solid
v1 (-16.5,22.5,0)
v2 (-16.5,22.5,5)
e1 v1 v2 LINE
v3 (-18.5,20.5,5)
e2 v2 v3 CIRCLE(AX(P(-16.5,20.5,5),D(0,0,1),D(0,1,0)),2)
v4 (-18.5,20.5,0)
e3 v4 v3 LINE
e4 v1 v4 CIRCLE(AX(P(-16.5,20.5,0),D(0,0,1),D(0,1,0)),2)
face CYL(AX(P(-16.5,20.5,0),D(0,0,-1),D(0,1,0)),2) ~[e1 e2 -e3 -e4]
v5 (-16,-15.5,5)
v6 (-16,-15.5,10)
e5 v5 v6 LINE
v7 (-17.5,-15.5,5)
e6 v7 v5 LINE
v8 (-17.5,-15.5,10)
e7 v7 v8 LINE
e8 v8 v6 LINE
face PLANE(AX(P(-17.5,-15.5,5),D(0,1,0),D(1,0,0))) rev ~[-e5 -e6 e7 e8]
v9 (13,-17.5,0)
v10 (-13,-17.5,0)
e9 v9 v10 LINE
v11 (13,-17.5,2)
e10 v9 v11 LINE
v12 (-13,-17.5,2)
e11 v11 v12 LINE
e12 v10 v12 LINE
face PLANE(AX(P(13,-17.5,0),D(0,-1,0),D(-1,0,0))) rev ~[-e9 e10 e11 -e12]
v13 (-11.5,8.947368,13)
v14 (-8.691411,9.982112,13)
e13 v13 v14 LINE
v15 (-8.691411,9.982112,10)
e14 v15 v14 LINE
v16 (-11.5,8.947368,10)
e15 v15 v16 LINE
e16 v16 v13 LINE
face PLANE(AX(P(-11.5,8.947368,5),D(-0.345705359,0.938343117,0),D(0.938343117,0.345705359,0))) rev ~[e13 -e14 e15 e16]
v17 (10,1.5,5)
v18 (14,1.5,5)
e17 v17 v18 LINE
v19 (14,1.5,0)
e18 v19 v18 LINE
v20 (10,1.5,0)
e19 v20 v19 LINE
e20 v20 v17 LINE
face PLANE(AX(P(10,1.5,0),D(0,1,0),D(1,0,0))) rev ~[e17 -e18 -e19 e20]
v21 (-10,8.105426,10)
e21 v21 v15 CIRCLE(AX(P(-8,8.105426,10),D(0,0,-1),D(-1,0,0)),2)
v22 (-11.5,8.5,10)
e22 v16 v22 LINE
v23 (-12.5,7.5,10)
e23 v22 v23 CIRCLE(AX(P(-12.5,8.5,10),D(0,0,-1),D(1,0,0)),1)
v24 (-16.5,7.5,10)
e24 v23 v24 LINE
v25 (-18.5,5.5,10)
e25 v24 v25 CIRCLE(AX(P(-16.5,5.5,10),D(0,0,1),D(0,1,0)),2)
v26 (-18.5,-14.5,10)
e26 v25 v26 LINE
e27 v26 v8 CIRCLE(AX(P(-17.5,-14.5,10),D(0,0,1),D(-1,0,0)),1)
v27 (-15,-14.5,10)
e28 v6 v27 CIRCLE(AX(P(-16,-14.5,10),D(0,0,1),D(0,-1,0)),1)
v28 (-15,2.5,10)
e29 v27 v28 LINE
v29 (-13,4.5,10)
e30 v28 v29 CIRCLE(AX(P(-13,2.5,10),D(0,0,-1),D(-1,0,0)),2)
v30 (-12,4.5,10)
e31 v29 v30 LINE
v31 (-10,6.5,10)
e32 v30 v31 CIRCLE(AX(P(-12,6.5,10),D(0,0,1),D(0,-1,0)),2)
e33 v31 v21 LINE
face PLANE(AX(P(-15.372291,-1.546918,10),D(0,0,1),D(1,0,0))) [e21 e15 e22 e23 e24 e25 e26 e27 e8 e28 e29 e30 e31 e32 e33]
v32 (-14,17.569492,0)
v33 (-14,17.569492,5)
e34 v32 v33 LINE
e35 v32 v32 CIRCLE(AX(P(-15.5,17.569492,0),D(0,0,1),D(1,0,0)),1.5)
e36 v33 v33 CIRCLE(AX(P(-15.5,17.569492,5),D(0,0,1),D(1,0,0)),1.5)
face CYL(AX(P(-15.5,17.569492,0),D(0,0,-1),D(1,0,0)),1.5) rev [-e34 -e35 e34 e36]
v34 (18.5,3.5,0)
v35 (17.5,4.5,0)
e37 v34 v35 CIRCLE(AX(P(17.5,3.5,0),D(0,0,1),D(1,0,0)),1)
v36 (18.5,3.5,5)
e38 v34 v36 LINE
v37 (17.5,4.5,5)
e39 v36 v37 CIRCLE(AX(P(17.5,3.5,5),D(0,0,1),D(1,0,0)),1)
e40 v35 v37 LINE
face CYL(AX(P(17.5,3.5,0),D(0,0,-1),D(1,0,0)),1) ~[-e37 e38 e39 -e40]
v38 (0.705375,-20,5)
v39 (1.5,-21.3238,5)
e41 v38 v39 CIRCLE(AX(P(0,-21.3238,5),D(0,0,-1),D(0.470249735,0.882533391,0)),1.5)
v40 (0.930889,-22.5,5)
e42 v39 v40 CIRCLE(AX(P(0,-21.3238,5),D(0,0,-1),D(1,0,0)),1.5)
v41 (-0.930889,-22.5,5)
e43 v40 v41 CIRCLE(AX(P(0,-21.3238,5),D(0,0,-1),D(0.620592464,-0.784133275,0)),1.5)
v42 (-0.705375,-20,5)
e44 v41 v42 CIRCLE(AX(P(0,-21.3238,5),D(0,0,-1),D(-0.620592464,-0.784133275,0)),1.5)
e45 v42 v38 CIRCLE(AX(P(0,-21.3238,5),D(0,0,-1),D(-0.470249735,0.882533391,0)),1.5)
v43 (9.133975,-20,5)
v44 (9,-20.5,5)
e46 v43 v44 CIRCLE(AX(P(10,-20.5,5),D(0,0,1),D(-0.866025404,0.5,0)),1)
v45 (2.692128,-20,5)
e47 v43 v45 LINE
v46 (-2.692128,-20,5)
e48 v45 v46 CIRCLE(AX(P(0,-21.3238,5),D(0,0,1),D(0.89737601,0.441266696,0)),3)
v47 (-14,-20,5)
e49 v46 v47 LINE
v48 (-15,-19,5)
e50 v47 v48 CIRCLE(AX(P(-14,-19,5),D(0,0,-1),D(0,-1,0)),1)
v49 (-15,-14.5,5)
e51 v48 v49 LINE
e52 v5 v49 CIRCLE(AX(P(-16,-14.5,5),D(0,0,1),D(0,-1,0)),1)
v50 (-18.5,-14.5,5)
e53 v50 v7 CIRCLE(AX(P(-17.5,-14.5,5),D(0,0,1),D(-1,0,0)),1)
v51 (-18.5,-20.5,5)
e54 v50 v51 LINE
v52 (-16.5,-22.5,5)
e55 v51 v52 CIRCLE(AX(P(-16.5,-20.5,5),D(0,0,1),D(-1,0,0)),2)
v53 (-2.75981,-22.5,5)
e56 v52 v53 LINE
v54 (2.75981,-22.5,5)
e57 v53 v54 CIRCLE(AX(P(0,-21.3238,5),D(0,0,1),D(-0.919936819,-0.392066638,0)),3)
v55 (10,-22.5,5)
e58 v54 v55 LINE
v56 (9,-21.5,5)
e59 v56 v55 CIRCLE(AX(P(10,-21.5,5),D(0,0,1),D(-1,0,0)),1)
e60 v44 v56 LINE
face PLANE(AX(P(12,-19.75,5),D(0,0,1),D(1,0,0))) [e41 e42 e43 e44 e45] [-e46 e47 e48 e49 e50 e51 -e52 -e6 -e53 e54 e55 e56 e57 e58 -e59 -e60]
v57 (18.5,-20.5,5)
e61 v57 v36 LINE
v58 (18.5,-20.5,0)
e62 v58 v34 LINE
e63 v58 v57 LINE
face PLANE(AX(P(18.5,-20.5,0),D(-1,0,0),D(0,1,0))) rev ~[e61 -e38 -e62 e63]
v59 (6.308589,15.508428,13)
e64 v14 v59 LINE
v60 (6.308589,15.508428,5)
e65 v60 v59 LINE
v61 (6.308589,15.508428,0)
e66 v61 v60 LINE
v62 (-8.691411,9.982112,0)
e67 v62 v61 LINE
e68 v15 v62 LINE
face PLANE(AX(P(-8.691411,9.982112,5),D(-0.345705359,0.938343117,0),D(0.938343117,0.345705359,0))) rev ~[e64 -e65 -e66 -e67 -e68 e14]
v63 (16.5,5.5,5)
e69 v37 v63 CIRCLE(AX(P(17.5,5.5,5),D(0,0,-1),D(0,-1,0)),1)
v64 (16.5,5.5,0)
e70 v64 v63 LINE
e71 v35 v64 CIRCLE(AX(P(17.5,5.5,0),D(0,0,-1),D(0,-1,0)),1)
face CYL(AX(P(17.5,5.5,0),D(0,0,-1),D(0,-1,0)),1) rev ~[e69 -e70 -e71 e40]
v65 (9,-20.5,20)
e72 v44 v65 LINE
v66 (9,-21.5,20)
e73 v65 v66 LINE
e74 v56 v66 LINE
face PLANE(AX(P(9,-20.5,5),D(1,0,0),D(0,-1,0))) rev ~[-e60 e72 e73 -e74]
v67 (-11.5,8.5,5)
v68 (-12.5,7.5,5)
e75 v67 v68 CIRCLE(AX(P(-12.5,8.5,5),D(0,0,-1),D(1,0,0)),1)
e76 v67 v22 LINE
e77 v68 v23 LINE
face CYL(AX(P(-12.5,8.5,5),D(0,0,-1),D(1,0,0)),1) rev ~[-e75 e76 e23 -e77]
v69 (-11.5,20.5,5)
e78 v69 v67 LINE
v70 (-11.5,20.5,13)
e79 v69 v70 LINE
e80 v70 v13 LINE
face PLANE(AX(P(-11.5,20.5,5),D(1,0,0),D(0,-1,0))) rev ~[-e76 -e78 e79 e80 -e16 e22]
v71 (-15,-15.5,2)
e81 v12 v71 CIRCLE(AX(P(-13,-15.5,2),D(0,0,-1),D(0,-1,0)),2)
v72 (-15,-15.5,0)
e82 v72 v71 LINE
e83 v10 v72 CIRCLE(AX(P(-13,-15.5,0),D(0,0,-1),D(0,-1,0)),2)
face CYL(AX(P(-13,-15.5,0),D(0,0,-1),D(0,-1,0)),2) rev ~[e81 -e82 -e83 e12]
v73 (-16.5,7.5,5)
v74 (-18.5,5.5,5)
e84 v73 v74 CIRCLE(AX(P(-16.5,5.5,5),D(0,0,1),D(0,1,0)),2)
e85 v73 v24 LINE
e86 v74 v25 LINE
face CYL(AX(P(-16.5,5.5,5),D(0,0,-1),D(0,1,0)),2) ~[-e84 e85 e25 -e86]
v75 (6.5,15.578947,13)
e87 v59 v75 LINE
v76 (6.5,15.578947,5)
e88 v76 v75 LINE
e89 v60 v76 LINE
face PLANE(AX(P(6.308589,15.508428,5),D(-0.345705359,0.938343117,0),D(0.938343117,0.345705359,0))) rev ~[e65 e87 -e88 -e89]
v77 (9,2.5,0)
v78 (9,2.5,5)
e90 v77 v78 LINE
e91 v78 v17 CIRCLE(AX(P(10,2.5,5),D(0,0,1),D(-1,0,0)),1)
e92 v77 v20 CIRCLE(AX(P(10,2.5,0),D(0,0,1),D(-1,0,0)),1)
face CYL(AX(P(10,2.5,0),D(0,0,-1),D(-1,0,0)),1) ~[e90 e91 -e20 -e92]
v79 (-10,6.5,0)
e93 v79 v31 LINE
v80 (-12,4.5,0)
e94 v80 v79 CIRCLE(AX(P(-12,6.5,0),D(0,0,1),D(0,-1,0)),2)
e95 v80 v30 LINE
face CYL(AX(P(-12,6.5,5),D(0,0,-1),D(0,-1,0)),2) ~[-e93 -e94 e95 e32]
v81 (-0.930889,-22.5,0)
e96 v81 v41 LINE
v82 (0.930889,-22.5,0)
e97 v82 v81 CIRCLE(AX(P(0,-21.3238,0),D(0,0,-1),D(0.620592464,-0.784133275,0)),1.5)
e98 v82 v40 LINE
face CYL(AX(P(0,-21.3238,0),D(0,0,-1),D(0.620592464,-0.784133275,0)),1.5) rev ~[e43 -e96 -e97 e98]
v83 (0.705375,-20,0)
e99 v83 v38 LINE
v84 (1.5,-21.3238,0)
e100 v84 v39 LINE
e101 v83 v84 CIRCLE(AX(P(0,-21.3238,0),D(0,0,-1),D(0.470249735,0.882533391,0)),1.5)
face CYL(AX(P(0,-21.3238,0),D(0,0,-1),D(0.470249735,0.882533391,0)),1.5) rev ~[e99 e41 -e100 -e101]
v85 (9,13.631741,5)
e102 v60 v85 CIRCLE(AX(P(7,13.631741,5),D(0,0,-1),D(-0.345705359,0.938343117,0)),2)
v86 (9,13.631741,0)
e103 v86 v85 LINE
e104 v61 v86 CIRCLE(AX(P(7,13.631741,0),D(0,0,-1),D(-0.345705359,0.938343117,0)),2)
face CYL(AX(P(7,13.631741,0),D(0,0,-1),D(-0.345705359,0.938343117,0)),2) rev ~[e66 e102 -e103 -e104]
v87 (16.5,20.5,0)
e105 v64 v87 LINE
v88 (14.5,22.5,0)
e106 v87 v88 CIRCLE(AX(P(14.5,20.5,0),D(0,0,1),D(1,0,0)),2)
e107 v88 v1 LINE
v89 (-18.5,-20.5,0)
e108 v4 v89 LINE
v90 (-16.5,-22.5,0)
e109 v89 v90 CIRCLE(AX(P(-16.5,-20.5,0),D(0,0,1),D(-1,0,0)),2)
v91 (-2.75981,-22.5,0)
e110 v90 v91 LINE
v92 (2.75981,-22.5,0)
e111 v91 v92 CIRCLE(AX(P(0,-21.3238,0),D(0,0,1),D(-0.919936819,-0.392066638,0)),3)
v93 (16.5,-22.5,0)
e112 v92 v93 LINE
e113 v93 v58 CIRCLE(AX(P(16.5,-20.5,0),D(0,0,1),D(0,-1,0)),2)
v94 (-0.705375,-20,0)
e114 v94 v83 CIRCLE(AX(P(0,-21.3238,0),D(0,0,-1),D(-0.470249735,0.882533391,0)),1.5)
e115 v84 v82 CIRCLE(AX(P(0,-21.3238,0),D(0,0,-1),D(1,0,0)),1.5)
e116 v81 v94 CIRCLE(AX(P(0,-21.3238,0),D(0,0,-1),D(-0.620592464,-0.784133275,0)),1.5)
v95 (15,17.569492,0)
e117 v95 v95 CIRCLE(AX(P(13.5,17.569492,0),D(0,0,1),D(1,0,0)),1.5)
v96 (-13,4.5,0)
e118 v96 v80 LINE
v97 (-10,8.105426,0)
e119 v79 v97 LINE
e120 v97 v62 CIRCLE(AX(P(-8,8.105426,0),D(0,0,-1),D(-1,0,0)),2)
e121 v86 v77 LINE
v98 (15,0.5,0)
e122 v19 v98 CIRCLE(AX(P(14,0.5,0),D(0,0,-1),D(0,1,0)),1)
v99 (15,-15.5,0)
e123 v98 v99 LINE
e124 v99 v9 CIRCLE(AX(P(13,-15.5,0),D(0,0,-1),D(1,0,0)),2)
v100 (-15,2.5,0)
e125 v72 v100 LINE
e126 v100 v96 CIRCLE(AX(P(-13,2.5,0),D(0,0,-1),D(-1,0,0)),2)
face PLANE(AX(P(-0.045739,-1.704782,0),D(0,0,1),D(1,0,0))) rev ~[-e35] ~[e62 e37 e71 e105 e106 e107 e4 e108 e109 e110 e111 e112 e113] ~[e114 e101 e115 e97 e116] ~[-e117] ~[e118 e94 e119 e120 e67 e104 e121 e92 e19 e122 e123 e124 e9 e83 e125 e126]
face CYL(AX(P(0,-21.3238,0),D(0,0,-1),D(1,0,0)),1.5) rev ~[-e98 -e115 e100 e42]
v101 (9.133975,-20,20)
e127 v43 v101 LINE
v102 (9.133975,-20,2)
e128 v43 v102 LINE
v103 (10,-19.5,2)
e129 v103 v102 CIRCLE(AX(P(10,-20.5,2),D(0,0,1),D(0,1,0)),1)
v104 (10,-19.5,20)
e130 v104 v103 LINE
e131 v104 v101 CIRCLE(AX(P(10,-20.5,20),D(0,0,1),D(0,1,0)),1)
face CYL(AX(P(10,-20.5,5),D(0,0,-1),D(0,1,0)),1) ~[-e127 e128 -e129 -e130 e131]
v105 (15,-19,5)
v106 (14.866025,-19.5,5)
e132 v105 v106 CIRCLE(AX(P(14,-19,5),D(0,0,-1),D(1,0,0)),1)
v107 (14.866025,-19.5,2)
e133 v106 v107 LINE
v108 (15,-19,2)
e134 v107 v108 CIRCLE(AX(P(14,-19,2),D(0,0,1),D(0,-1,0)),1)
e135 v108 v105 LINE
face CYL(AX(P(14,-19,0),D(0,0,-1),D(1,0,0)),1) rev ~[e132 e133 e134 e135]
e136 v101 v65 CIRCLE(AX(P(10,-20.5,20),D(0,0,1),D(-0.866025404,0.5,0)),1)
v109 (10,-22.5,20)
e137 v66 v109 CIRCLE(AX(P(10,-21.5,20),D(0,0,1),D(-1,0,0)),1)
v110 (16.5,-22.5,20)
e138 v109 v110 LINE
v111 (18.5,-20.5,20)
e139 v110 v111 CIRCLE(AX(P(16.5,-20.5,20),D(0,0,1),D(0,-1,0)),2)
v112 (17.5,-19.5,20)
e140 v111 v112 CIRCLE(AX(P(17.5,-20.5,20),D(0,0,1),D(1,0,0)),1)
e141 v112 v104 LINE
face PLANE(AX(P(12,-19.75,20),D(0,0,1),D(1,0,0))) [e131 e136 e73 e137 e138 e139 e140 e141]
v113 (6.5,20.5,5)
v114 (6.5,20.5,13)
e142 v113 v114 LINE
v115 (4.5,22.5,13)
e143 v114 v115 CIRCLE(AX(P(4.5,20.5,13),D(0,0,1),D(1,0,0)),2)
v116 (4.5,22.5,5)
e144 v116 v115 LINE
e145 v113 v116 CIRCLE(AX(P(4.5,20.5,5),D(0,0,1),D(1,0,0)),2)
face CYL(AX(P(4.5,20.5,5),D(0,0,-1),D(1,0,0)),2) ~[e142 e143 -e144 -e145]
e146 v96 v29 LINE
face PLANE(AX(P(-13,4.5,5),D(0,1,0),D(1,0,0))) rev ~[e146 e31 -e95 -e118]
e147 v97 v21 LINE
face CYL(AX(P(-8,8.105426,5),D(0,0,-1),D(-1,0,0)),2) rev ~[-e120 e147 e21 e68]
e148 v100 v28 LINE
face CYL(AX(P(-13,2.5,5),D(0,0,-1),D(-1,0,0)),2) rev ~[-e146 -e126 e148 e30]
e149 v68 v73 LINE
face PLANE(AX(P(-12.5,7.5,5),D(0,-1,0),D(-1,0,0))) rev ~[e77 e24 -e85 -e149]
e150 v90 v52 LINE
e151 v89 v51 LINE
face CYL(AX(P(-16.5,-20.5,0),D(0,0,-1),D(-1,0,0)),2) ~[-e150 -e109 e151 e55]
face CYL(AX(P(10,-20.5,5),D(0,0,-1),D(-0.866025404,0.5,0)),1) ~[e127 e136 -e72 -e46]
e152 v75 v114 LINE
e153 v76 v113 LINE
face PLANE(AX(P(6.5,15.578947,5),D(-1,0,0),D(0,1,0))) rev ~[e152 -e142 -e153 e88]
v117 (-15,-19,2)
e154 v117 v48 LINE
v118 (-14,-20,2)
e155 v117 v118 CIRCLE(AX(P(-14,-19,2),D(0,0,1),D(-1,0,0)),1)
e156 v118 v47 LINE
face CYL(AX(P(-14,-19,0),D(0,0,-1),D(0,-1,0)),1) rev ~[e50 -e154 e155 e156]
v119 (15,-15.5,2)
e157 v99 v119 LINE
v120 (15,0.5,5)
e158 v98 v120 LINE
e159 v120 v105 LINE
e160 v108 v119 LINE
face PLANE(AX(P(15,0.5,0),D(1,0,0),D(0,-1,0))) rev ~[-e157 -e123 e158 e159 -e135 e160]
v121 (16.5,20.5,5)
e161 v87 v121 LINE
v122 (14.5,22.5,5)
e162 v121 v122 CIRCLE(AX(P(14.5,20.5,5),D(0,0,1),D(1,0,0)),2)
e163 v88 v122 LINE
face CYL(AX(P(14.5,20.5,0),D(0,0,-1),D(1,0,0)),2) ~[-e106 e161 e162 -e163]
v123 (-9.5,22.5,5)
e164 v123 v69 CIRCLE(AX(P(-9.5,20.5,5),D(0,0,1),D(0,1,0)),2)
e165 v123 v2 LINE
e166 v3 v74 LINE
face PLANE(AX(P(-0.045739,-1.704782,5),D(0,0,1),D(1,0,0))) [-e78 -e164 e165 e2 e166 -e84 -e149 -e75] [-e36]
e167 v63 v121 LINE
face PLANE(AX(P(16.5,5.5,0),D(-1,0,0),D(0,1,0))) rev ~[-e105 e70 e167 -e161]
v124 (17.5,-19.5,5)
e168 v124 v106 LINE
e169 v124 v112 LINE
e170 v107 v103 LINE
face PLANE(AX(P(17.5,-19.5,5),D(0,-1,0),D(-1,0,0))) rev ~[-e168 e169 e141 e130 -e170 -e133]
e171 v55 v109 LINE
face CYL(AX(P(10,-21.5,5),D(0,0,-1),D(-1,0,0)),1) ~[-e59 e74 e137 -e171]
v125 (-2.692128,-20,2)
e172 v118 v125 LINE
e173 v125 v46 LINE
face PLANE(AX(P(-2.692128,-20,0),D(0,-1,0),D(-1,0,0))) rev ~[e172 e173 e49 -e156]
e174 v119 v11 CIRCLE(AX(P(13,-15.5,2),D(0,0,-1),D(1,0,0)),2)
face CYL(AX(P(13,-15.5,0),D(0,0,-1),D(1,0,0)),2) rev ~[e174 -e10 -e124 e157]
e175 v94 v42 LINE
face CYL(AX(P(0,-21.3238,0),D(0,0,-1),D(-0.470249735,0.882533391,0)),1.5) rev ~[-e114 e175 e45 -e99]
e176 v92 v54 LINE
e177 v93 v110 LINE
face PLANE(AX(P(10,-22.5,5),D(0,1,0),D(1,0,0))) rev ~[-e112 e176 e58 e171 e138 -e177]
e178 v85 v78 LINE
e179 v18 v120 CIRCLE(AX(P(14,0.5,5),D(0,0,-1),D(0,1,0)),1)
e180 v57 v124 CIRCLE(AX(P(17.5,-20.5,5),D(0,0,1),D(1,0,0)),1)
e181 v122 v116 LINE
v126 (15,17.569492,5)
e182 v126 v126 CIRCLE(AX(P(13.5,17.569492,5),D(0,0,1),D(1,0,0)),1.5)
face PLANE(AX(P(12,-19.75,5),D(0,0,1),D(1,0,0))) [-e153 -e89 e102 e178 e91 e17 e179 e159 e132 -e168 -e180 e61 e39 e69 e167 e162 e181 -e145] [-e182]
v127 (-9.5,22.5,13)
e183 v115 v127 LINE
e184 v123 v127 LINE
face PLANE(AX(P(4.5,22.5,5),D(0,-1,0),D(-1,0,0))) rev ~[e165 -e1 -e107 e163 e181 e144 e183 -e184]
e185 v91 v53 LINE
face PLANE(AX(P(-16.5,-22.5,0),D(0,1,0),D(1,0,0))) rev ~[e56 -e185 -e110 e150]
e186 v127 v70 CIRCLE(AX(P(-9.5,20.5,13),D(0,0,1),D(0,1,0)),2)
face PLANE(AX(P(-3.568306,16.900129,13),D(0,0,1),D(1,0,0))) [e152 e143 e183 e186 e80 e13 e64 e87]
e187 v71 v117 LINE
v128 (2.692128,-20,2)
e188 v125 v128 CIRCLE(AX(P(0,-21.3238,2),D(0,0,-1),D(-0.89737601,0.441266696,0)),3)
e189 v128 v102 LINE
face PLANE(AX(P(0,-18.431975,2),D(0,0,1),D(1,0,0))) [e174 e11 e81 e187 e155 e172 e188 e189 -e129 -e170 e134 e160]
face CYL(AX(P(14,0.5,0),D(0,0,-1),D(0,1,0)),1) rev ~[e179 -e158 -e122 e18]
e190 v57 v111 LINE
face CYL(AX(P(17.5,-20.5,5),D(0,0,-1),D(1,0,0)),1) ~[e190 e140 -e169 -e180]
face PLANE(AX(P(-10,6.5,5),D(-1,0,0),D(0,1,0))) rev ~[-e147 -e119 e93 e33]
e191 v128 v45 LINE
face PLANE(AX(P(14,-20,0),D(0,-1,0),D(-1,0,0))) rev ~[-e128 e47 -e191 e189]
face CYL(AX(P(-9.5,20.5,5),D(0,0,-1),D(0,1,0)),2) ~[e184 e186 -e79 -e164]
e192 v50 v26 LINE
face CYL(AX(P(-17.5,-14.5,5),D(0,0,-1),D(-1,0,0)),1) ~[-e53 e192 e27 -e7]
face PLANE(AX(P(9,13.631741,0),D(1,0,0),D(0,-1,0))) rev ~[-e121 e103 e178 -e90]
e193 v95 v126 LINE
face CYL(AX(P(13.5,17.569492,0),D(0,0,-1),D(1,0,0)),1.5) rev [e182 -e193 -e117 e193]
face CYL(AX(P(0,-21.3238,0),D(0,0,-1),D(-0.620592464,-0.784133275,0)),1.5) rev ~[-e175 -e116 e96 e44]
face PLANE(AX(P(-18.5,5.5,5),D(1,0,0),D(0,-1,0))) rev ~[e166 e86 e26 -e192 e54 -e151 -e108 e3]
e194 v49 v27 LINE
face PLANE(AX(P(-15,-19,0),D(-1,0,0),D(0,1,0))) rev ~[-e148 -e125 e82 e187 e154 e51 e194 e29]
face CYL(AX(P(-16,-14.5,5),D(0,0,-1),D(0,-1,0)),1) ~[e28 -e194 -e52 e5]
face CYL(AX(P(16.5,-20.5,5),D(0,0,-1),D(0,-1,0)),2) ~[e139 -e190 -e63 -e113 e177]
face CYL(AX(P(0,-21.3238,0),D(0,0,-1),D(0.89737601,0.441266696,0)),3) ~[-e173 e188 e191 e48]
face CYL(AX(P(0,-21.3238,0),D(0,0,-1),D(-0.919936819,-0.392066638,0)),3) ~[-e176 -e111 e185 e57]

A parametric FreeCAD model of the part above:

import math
import FreeCAD as App
import Part
import Sketcher
from FreeCAD import Vector
Q = App.Units.Quantity

doc = App.newDocument("Part")
body = doc.addObject("PartDesign::Body", "Body")

# Sketch on XY plane
sketch1 = body.newObject("Sketcher::SketchObject", "Sketch")
sketch1.AttachmentSupport = (doc.getObject("XY_Plane"), [""])
sketch1.MapMode = "FlatFace"
sketch1.addGeometry(Part.LineSegment(Vector(-14, -20, 0), Vector(-2.7, -20, 0)), False)
sketch1.addGeometry(Part.ArcOfCircle(Part.Circle(Vector(0, -21.3, 0), Vector(0, 0, 1), 3), math.radians(26), math.radians(154)), False)
sketch1.addGeometry(Part.LineSegment(Vector(2.7, -20, 0), Vector(14, -20, 0)), False)
sketch1.addGeometry(Part.ArcOfCircle(Part.Circle(Vector(14, -19, 0), Vector(0, 0, 1), 1), math.radians(-90), math.radians(0)), False)
sketch1.addGeometry(Part.LineSegment(Vector(15, -19, 0), Vector(15, -15.5, 0)), False)
sketch1.addGeometry(Part.ArcOfCircle(Part.Circle(Vector(13, -15.5, 0), Vector(0, 0, 1), 2), math.radians(-90), math.radians(0)), False)
sketch1.addGeometry(Part.LineSegment(Vector(13, -17.5, 0), Vector(-13, -17.5, 0)), False)
sketch1.addGeometry(Part.ArcOfCircle(Part.Circle(Vector(-13, -15.5, 0), Vector(0, 0, 1), 2), math.radians(180), math.radians(270)), False)
sketch1.addGeometry(Part.LineSegment(Vector(-15, -15.5, 0), Vector(-15, -19, 0)), False)
sketch1.addGeometry(Part.ArcOfCircle(Part.Circle(Vector(-14, -19, 0), Vector(0, 0, 1), 1), math.radians(180), math.radians(270)), False)
sketch1.addConstraint(Sketcher.Constraint("Coincident", 0, 2, 1, 2))
sketch1.addConstraint(Sketcher.Constraint("Coincident", 1, 1, 2, 1))
sketch1.addConstraint(Sketcher.Constraint("Tangent", 2, 2, 3, 1))
sketch1.addConstraint(Sketcher.Constraint("Tangent", 3, 2, 4, 1))
sketch1.addConstraint(Sketcher.Constraint("Tangent", 4, 2, 5, 2))
sketch1.addConstraint(Sketcher.Constraint("Tangent", 5, 1, 6, 1))
sketch1.addConstraint(Sketcher.Constraint("Tangent", 6, 2, 7, 2))
sketch1.addConstraint(Sketcher.Constraint("Tangent", 7, 1, 8, 1))
sketch1.addConstraint(Sketcher.Constraint("Tangent", 8, 2, 9, 1))
sketch1.addConstraint(Sketcher.Constraint("Tangent", 9, 2, 0, 1))
sketch1.addConstraint(Sketcher.Constraint("Horizontal", 0))
sketch1.addConstraint(Sketcher.Constraint("Horizontal", 2))
sketch1.addConstraint(Sketcher.Constraint("Vertical", 4))
sketch1.addConstraint(Sketcher.Constraint("Horizontal", 6))
sketch1.addConstraint(Sketcher.Constraint("Vertical", 8))
sketch1.addConstraint(Sketcher.Constraint("Equal", 5, 7))
sketch1.addConstraint(Sketcher.Constraint("Equal", 3, 9))
sketch1.addConstraint(Sketcher.Constraint("Symmetric", 3, 3, 9, 3, -2))
sketch1.addConstraint(Sketcher.Constraint("PointOnObject", 1, 3, -2))
sketch1.addConstraint(Sketcher.Constraint("Radius", 1, Q("3 mm")))
sketch1.addConstraint(Sketcher.Constraint("Radius", 3, Q("1 mm")))
sketch1.addConstraint(Sketcher.Constraint("Radius", 5, Q("2 mm")))
sketch1.addConstraint(Sketcher.Constraint("DistanceX", 6, 2, 6, 1, Q("26 mm")))
sketch1.addConstraint(Sketcher.Constraint("DistanceY", 4, 1, 4, 2, Q("3.5 mm")))
sketch1.addConstraint(Sketcher.Constraint("DistanceY", 3, 3, -1, 1, Q("19 mm")))
sketch1.addConstraint(Sketcher.Constraint("DistanceX", 0, 1, 0, 2, Q("11.307872 mm")))
pad1 = body.newObject("PartDesign::Pad", "Pad")
pad1.Profile = sketch1
pad1.Length = 2

# Sketch on XY plane
sketch2 = body.newObject("Sketcher::SketchObject", "Sketch001")
sketch2.AttachmentSupport = (doc.getObject("XY_Plane"), [""])
sketch2.MapMode = "FlatFace"
sketch2.addGeometry(Part.ArcOfCircle(Part.Circle(Vector(17.5, 5.5, 0), Vector(0, 0, 1), 1), math.radians(180), math.radians(270)), False)
sketch2.addGeometry(Part.LineSegment(Vector(16.5, 5.5, 0), Vector(16.5, 20.5, 0)), False)
sketch2.addGeometry(Part.ArcOfCircle(Part.Circle(Vector(14.5, 20.5, 0), Vector(0, 0, 1), 2), math.radians(0), math.radians(90)), False)
sketch2.addGeometry(Part.LineSegment(Vector(14.5, 22.5, 0), Vector(-16.5, 22.5, 0)), False)
sketch2.addGeometry(Part.ArcOfCircle(Part.Circle(Vector(-16.5, 20.5, 0), Vector(0, 0, 1), 2), math.radians(90), math.radians(180)), False)
sketch2.addGeometry(Part.LineSegment(Vector(-18.5, 20.5, 0), Vector(-18.5, -20.5, 0)), False)
sketch2.addGeometry(Part.ArcOfCircle(Part.Circle(Vector(-16.5, -20.5, 0), Vector(0, 0, 1), 2), math.radians(180), math.radians(270)), False)
sketch2.addGeometry(Part.LineSegment(Vector(-16.5, -22.5, 0), Vector(-2.8, -22.5, 0)), False)
sketch2.addGeometry(Part.ArcOfCircle(Part.Circle(Vector(0, -21.3, 0), Vector(0, 0, 1), 3), math.radians(-157), math.radians(-23)), False)
sketch2.addGeometry(Part.LineSegment(Vector(2.8, -22.5, 0), Vector(16.5, -22.5, 0)), False)
sketch2.addGeometry(Part.ArcOfCircle(Part.Circle(Vector(16.5, -20.5, 0), Vector(0, 0, 1), 2), math.radians(-90), math.radians(0)), False)
sketch2.addGeometry(Part.LineSegment(Vector(18.5, -20.5, 0), Vector(18.5, 3.5, 0)), False)
sketch2.addGeometry(Part.ArcOfCircle(Part.Circle(Vector(17.5, 3.5, 0), Vector(0, 0, 1), 1), math.radians(0), math.radians(90)), False)
sketch2.addGeometry(Part.ArcOfCircle(Part.Circle(Vector(0, -21.3, 0), Vector(0, 0, 1), 1.5), math.radians(-52), math.radians(0)), False)
sketch2.addGeometry(Part.ArcOfCircle(Part.Circle(Vector(0, -21.3, 0), Vector(0, 0, 1), 1.5), math.radians(-128), math.radians(-52)), False)
sketch2.addGeometry(Part.ArcOfCircle(Part.Circle(Vector(0, -21.3, 0), Vector(0, 0, 1), 1.5), math.radians(118), math.radians(232)), False)
sketch2.addGeometry(Part.ArcOfCircle(Part.Circle(Vector(0, -21.3, 0), Vector(0, 0, 1), 1.5), math.radians(62), math.radians(118)), False)
sketch2.addGeometry(Part.ArcOfCircle(Part.Circle(Vector(0, -21.3, 0), Vector(0, 0, 1), 1.5), math.radians(0), math.radians(62)), False)
sketch2.addGeometry(Part.LineSegment(Vector(14, -20, 0), Vector(2.7, -20, 0)), False)
sketch2.addGeometry(Part.ArcOfCircle(Part.Circle(Vector(0, -21.3, 0), Vector(0, 0, 1), 3), math.radians(26), math.radians(154)), False)
sketch2.addGeometry(Part.LineSegment(Vector(-2.7, -20, 0), Vector(-14, -20, 0)), False)
sketch2.addGeometry(Part.ArcOfCircle(Part.Circle(Vector(-14, -19, 0), Vector(0, 0, 1), 1), math.radians(180), math.radians(270)), False)
sketch2.addGeometry(Part.LineSegment(Vector(-15, -19, 0), Vector(-15, 2.5, 0)), False)
sketch2.addGeometry(Part.ArcOfCircle(Part.Circle(Vector(-13, 2.5, 0), Vector(0, 0, 1), 2), math.radians(90), math.radians(180)), False)
sketch2.addGeometry(Part.LineSegment(Vector(-13, 4.5, 0), Vector(-12, 4.5, 0)), False)
sketch2.addGeometry(Part.ArcOfCircle(Part.Circle(Vector(-12, 6.5, 0), Vector(0, 0, 1), 2), math.radians(-90), math.radians(0)), False)
sketch2.addGeometry(Part.LineSegment(Vector(-10, 6.5, 0), Vector(-10, 8.1, 0)), False)
sketch2.addGeometry(Part.ArcOfCircle(Part.Circle(Vector(-8, 8.1, 0), Vector(0, 0, 1), 2), math.radians(110), math.radians(180)), False)
sketch2.addGeometry(Part.LineSegment(Vector(-8.7, 10, 0), Vector(6.3, 15.5, 0)), False)
sketch2.addGeometry(Part.ArcOfCircle(Part.Circle(Vector(7, 13.6, 0), Vector(0, 0, 1), 2), math.radians(0), math.radians(110)), False)
sketch2.addGeometry(Part.LineSegment(Vector(9, 13.6, 0), Vector(9, 2.5, 0)), False)
sketch2.addGeometry(Part.ArcOfCircle(Part.Circle(Vector(10, 2.5, 0), Vector(0, 0, 1), 1), math.radians(180), math.radians(270)), False)
sketch2.addGeometry(Part.LineSegment(Vector(10, 1.5, 0), Vector(14, 1.5, 0)), False)
sketch2.addGeometry(Part.ArcOfCircle(Part.Circle(Vector(14, 0.5, 0), Vector(0, 0, 1), 1), math.radians(0), math.radians(90)), False)
sketch2.addGeometry(Part.LineSegment(Vector(15, 0.5, 0), Vector(15, -19, 0)), False)
sketch2.addGeometry(Part.ArcOfCircle(Part.Circle(Vector(14, -19, 0), Vector(0, 0, 1), 1), math.radians(-90), math.radians(0)), False)
sketch2.addGeometry(Part.Circle(Vector(-15.5, 17.6, 0), Vector(0, 0, 1), 1.5), False)
sketch2.addGeometry(Part.Circle(Vector(13.5, 17.6, 0), Vector(0, 0, 1), 1.5), False)
sketch2.addConstraint(Sketcher.Constraint("Tangent", 0, 1, 1, 1))
sketch2.addConstraint(Sketcher.Constraint("Tangent", 1, 2, 2, 1))
sketch2.addConstraint(Sketcher.Constraint("Tangent", 2, 2, 3, 1))
sketch2.addConstraint(Sketcher.Constraint("Tangent", 3, 2, 4, 1))
sketch2.addConstraint(Sketcher.Constraint("Tangent", 4, 2, 5, 1))
sketch2.addConstraint(Sketcher.Constraint("Tangent", 5, 2, 6, 1))
sketch2.addConstraint(Sketcher.Constraint("Tangent", 6, 2, 7, 1))
sketch2.addConstraint(Sketcher.Constraint("Coincident", 7, 2, 8, 1))
sketch2.addConstraint(Sketcher.Constraint("Coincident", 8, 2, 9, 1))
sketch2.addConstraint(Sketcher.Constraint("Tangent", 9, 2, 10, 1))
sketch2.addConstraint(Sketcher.Constraint("Tangent", 10, 2, 11, 1))
sketch2.addConstraint(Sketcher.Constraint("Tangent", 11, 2, 12, 1))
sketch2.addConstraint(Sketcher.Constraint("Tangent", 12, 2, 0, 2))
sketch2.addConstraint(Sketcher.Constraint("Tangent", 13, 1, 14, 2))
sketch2.addConstraint(Sketcher.Constraint("Tangent", 14, 1, 15, 2))
sketch2.addConstraint(Sketcher.Constraint("Tangent", 15, 1, 16, 2))
sketch2.addConstraint(Sketcher.Constraint("Tangent", 16, 1, 17, 2))
sketch2.addConstraint(Sketcher.Constraint("Tangent", 17, 1, 13, 2))
sketch2.addConstraint(Sketcher.Constraint("Coincident", 18, 2, 19, 1))
sketch2.addConstraint(Sketcher.Constraint("Coincident", 19, 2, 20, 1))
sketch2.addConstraint(Sketcher.Constraint("Tangent", 20, 2, 21, 2))
sketch2.addConstraint(Sketcher.Constraint("Tangent", 21, 1, 22, 1))
sketch2.addConstraint(Sketcher.Constraint("Tangent", 22, 2, 23, 2))
sketch2.addConstraint(Sketcher.Constraint("Tangent", 23, 1, 24, 1))
sketch2.addConstraint(Sketcher.Constraint("Tangent", 24, 2, 25, 1))
sketch2.addConstraint(Sketcher.Constraint("Tangent", 25, 2, 26, 1))
sketch2.addConstraint(Sketcher.Constraint("Tangent", 26, 2, 27, 2))
sketch2.addConstraint(Sketcher.Constraint("Tangent", 27, 1, 28, 1))
sketch2.addConstraint(Sketcher.Constraint("Tangent", 28, 2, 29, 2))
sketch2.addConstraint(Sketcher.Constraint("Tangent", 29, 1, 30, 1))
sketch2.addConstraint(Sketcher.Constraint("Tangent", 30, 2, 31, 1))
sketch2.addConstraint(Sketcher.Constraint("Tangent", 31, 2, 32, 1))
sketch2.addConstraint(Sketcher.Constraint("Tangent", 32, 2, 33, 2))
sketch2.addConstraint(Sketcher.Constraint("Tangent", 33, 1, 34, 1))
sketch2.addConstraint(Sketcher.Constraint("Tangent", 34, 2, 35, 2))
sketch2.addConstraint(Sketcher.Constraint("Tangent", 35, 1, 18, 1))
sketch2.addConstraint(Sketcher.Constraint("Vertical", 1))
sketch2.addConstraint(Sketcher.Constraint("Horizontal", 3))
sketch2.addConstraint(Sketcher.Constraint("Vertical", 5))
sketch2.addConstraint(Sketcher.Constraint("Horizontal", 7))
sketch2.addConstraint(Sketcher.Constraint("Horizontal", 9))
sketch2.addConstraint(Sketcher.Constraint("Vertical", 11))
sketch2.addConstraint(Sketcher.Constraint("Horizontal", 18))
sketch2.addConstraint(Sketcher.Constraint("Horizontal", 20))
sketch2.addConstraint(Sketcher.Constraint("Vertical", 22))
sketch2.addConstraint(Sketcher.Constraint("Horizontal", 24))
sketch2.addConstraint(Sketcher.Constraint("Vertical", 26))
sketch2.addConstraint(Sketcher.Constraint("Vertical", 30))
sketch2.addConstraint(Sketcher.Constraint("Horizontal", 32))
sketch2.addConstraint(Sketcher.Constraint("Vertical", 34))
sketch2.addConstraint(Sketcher.Constraint("Coincident", 13, 3, 8, 3))
sketch2.addConstraint(Sketcher.Constraint("Coincident", 15, 3, 8, 3))
sketch2.addConstraint(Sketcher.Constraint("Coincident", 19, 3, 8, 3))
sketch2.addConstraint(Sketcher.Constraint("Equal", 2, 4))
sketch2.addConstraint(Sketcher.Constraint("Equal", 4, 6))
sketch2.addConstraint(Sketcher.Constraint("Equal", 6, 10))
sketch2.addConstraint(Sketcher.Constraint("Equal", 0, 12))
sketch2.addConstraint(Sketcher.Constraint("Equal", 8, 19))
sketch2.addConstraint(Sketcher.Constraint("Equal", 12, 21))
sketch2.addConstraint(Sketcher.Constraint("Equal", 10, 23))
sketch2.addConstraint(Sketcher.Constraint("Equal", 23, 25))
sketch2.addConstraint(Sketcher.Constraint("Equal", 25, 27))
sketch2.addConstraint(Sketcher.Constraint("Equal", 27, 29))
sketch2.addConstraint(Sketcher.Constraint("Equal", 21, 31))
sketch2.addConstraint(Sketcher.Constraint("Equal", 31, 33))
sketch2.addConstraint(Sketcher.Constraint("Equal", 33, 35))
sketch2.addConstraint(Sketcher.Constraint("Equal", 17, 36))
sketch2.addConstraint(Sketcher.Constraint("Equal", 36, 37))
sketch2.addConstraint(Sketcher.Constraint("Symmetric", 4, 3, 10, 3, -1, 1))
sketch2.addConstraint(Sketcher.Constraint("Symmetric", 21, 3, 35, 3, -2))
sketch2.addConstraint(Sketcher.Constraint("Symmetric", 7, 2, 8, 2, -2))
sketch2.addConstraint(Sketcher.Constraint("Horizontal", 23, 3, 31, 3))
sketch2.addConstraint(Sketcher.Constraint("Horizontal", 36, 3, 37, 3))
sketch2.addConstraint(Sketcher.Constraint("Horizontal", 9, 2, 13, 1))
sketch2.addConstraint(Sketcher.Constraint("Horizontal", 13, 1, 14, 1))
sketch2.addConstraint(Sketcher.Constraint("Horizontal", 15, 1, 16, 1))
sketch2.addConstraint(Sketcher.Constraint("Horizontal", 19, 3, 17, 1))
sketch2.addConstraint(Sketcher.Constraint("Horizontal", 16, 1, 18, 2))
sketch2.addConstraint(Sketcher.Constraint("Horizontal", 12, 2, 23, 1))
sketch2.addConstraint(Sketcher.Constraint("Vertical", 0, 3, 12, 3))
sketch2.addConstraint(Sketcher.Constraint("Vertical", 10, 3, 0, 1))
sketch2.addConstraint(Sketcher.Constraint("Diameter", 36, Q("3 mm")))
sketch2.addConstraint(Sketcher.Constraint("Radius", 0, Q("1 mm")))
sketch2.addConstraint(Sketcher.Constraint("Radius", 8, Q("3 mm")))
sketch2.addConstraint(Sketcher.Constraint("DistanceX", 3, 2, 3, 1, Q("31 mm")))
sketch2.addConstraint(Sketcher.Constraint("DistanceX", 24, 1, 24, 2, Q("1 mm")))
sketch2.addConstraint(Sketcher.Constraint("DistanceX", 32, 1, 32, 2, Q("4 mm")))
sketch2.addConstraint(Sketcher.Constraint("DistanceY", 1, 1, 1, 2, Q("15 mm")))
sketch2.addConstraint(Sketcher.Constraint("DistanceY", 5, 2, 5, 1, Q("41 mm")))
sketch2.addConstraint(Sketcher.Constraint("DistanceY", 22, 1, 22, 2, Q("21.5 mm")))
sketch2.addConstraint(Sketcher.Constraint("DistanceX", 21, 3, -1, 1, Q("14 mm")))
sketch2.addConstraint(Sketcher.Constraint("DistanceX", 4, 3, 36, 3, Q("1 mm")))
sketch2.addConstraint(Sketcher.Constraint("DistanceX", 37, 3, 2, 3, Q("1 mm")))
sketch2.addConstraint(Sketcher.Constraint("DistanceX", 7, 1, 7, 2, Q("13.74019 mm")))
sketch2.addConstraint(Sketcher.Constraint("DistanceY", 30, 2, 30, 1, Q("11.131741 mm")))
sketch2.addConstraint(Sketcher.Constraint("DistanceY", 26, 1, 26, 2, Q("1.605426 mm")))
sketch2.addConstraint(Sketcher.Constraint("DistanceY", -1, 1, 36, 3, Q("17.569492 mm")))
pad2 = body.newObject("PartDesign::Pad", "Pad001")
pad2.Profile = sketch2
pad2.Length = 5

# Sketch on XY plane
sketch3 = body.newObject("Sketcher::SketchObject", "Sketch002")
sketch3.AttachmentSupport = (doc.getObject("XY_Plane"), [""])
sketch3.MapMode = "FlatFace"
sketch3.AttachmentOffset = App.Placement(Vector(0, 0, 5), App.Rotation())
sketch3.addGeometry(Part.ArcOfCircle(Part.Circle(Vector(-17.5, -14.5, 0), Vector(0, 0, 1), 1), math.radians(180), math.radians(270)), False)
sketch3.addGeometry(Part.LineSegment(Vector(-17.5, -15.5, 0), Vector(-16, -15.5, 0)), False)
sketch3.addGeometry(Part.ArcOfCircle(Part.Circle(Vector(-16, -14.5, 0), Vector(0, 0, 1), 1), math.radians(-90), math.radians(0)), False)
sketch3.addGeometry(Part.LineSegment(Vector(-15, -14.5, 0), Vector(-15, 2.5, 0)), False)
sketch3.addGeometry(Part.ArcOfCircle(Part.Circle(Vector(-13, 2.5, 0), Vector(0, 0, 1), 2), math.radians(90), math.radians(180)), False)
sketch3.addGeometry(Part.LineSegment(Vector(-13, 4.5, 0), Vector(-12, 4.5, 0)), False)
sketch3.addGeometry(Part.ArcOfCircle(Part.Circle(Vector(-12, 6.5, 0), Vector(0, 0, 1), 2), math.radians(-90), math.radians(0)), False)
sketch3.addGeometry(Part.LineSegment(Vector(-10, 6.5, 0), Vector(-10, 8.11, 0)), False)
sketch3.addGeometry(Part.ArcOfCircle(Part.Circle(Vector(-8, 8.11, 0), Vector(0, 0, 1), 2), math.radians(110), math.radians(180)), False)
sketch3.addGeometry(Part.LineSegment(Vector(-8.69, 9.98, 0), Vector(-11.5, 8.95, 0)), False)
sketch3.addGeometry(Part.LineSegment(Vector(-11.5, 8.95, 0), Vector(-11.5, 8.5, 0)), False)
sketch3.addGeometry(Part.ArcOfCircle(Part.Circle(Vector(-12.5, 8.5, 0), Vector(0, 0, 1), 1), math.radians(-90), math.radians(0)), False)
sketch3.addGeometry(Part.LineSegment(Vector(-12.5, 7.5, 0), Vector(-16.5, 7.5, 0)), False)
sketch3.addGeometry(Part.ArcOfCircle(Part.Circle(Vector(-16.5, 5.5, 0), Vector(0, 0, 1), 2), math.radians(90), math.radians(180)), False)
sketch3.addGeometry(Part.LineSegment(Vector(-18.5, 5.5, 0), Vector(-18.5, -14.5, 0)), False)
sketch3.addConstraint(Sketcher.Constraint("Tangent", 0, 2, 1, 1))
sketch3.addConstraint(Sketcher.Constraint("Tangent", 1, 2, 2, 1))
sketch3.addConstraint(Sketcher.Constraint("Tangent", 2, 2, 3, 1))
sketch3.addConstraint(Sketcher.Constraint("Tangent", 3, 2, 4, 2))
sketch3.addConstraint(Sketcher.Constraint("Tangent", 4, 1, 5, 1))
sketch3.addConstraint(Sketcher.Constraint("Tangent", 5, 2, 6, 1))
sketch3.addConstraint(Sketcher.Constraint("Tangent", 6, 2, 7, 1))
sketch3.addConstraint(Sketcher.Constraint("Tangent", 7, 2, 8, 2))
sketch3.addConstraint(Sketcher.Constraint("Tangent", 8, 1, 9, 1))
sketch3.addConstraint(Sketcher.Constraint("Coincident", 9, 2, 10, 1))
sketch3.addConstraint(Sketcher.Constraint("Tangent", 10, 2, 11, 2))
sketch3.addConstraint(Sketcher.Constraint("Tangent", 11, 1, 12, 1))
sketch3.addConstraint(Sketcher.Constraint("Tangent", 12, 2, 13, 1))
sketch3.addConstraint(Sketcher.Constraint("Tangent", 13, 2, 14, 1))
sketch3.addConstraint(Sketcher.Constraint("Tangent", 14, 2, 0, 1))
sketch3.addConstraint(Sketcher.Constraint("Horizontal", 1))
sketch3.addConstraint(Sketcher.Constraint("Vertical", 3))
sketch3.addConstraint(Sketcher.Constraint("Horizontal", 5))
sketch3.addConstraint(Sketcher.Constraint("Vertical", 7))
sketch3.addConstraint(Sketcher.Constraint("Vertical", 10))
sketch3.addConstraint(Sketcher.Constraint("Horizontal", 12))
sketch3.addConstraint(Sketcher.Constraint("Vertical", 14))
sketch3.addConstraint(Sketcher.Constraint("Equal", 0, 2))
sketch3.addConstraint(Sketcher.Constraint("Equal", 4, 6))
sketch3.addConstraint(Sketcher.Constraint("Equal", 6, 8))
sketch3.addConstraint(Sketcher.Constraint("Equal", 2, 11))
sketch3.addConstraint(Sketcher.Constraint("Equal", 8, 13))
sketch3.addConstraint(Sketcher.Constraint("Radius", 0, Q("1 mm")))
sketch3.addConstraint(Sketcher.Constraint("Radius", 4, Q("2 mm")))
sketch3.addConstraint(Sketcher.Constraint("DistanceX", 5, 1, 5, 2, Q("1 mm")))
sketch3.addConstraint(Sketcher.Constraint("DistanceX", 12, 2, 12, 1, Q("4 mm")))
sketch3.addConstraint(Sketcher.Constraint("DistanceY", 3, 1, 3, 2, Q("17 mm")))
sketch3.addConstraint(Sketcher.Constraint("DistanceY", 14, 2, 14, 1, Q("20 mm")))
sketch3.addConstraint(Sketcher.Constraint("DistanceX", 1, 1, 1, 2, Q("1.5 mm")))
sketch3.addConstraint(Sketcher.Constraint("DistanceX", 2, 3, -1, 1, Q("16 mm")))
sketch3.addConstraint(Sketcher.Constraint("DistanceY", 0, 3, -1, 1, Q("14.5 mm")))
sketch3.addConstraint(Sketcher.Constraint("DistanceY", 10, 2, 10, 1, Q("0.447368 mm")))
sketch3.addConstraint(Sketcher.Constraint("DistanceY", 7, 1, 7, 2, Q("1.605426 mm")))
pad3 = body.newObject("PartDesign::Pad", "Pad002")
pad3.Profile = sketch3
pad3.Length = 5

# Sketch on XY plane
sketch4 = body.newObject("Sketcher::SketchObject", "Sketch003")
sketch4.AttachmentSupport = (doc.getObject("XY_Plane"), [""])
sketch4.MapMode = "FlatFace"
sketch4.AttachmentOffset = App.Placement(Vector(0, 0, 5), App.Rotation())
sketch4.addGeometry(Part.LineSegment(Vector(4.5, 22.5, 0), Vector(-9.5, 22.5, 0)), False)
sketch4.addGeometry(Part.ArcOfCircle(Part.Circle(Vector(-9.5, 20.5, 0), Vector(0, 0, 1), 2), math.radians(90), math.radians(180)), False)
sketch4.addGeometry(Part.LineSegment(Vector(-11.5, 20.5, 0), Vector(-11.5, 8.95, 0)), False)
sketch4.addGeometry(Part.LineSegment(Vector(-11.5, 8.95, 0), Vector(-8.69, 9.98, 0)), False)
sketch4.addGeometry(Part.LineSegment(Vector(-8.69, 9.98, 0), Vector(6.31, 15.51, 0)), False)
sketch4.addGeometry(Part.LineSegment(Vector(6.31, 15.51, 0), Vector(6.5, 15.58, 0)), False)
sketch4.addGeometry(Part.LineSegment(Vector(6.5, 15.58, 0), Vector(6.5, 20.5, 0)), False)
sketch4.addGeometry(Part.ArcOfCircle(Part.Circle(Vector(4.5, 20.5, 0), Vector(0, 0, 1), 2), math.radians(0), math.radians(90)), False)
sketch4.addConstraint(Sketcher.Constraint("Tangent", 0, 2, 1, 1))
sketch4.addConstraint(Sketcher.Constraint("Tangent", 1, 2, 2, 1))
sketch4.addConstraint(Sketcher.Constraint("Coincident", 2, 2, 3, 1))
sketch4.addConstraint(Sketcher.Constraint("Coincident", 3, 2, 4, 1))
sketch4.addConstraint(Sketcher.Constraint("Coincident", 4, 2, 5, 1))
sketch4.addConstraint(Sketcher.Constraint("Coincident", 5, 2, 6, 1))
sketch4.addConstraint(Sketcher.Constraint("Tangent", 6, 2, 7, 1))
sketch4.addConstraint(Sketcher.Constraint("Tangent", 7, 2, 0, 1))
sketch4.addConstraint(Sketcher.Constraint("Horizontal", 0))
sketch4.addConstraint(Sketcher.Constraint("Vertical", 2))
sketch4.addConstraint(Sketcher.Constraint("Vertical", 6))
sketch4.addConstraint(Sketcher.Constraint("Equal", 1, 7))
sketch4.addConstraint(Sketcher.Constraint("Parallel", 3, 4))
sketch4.addConstraint(Sketcher.Constraint("Parallel", 4, 5))
sketch4.addConstraint(Sketcher.Constraint("Radius", 1, Q("2 mm")))
sketch4.addConstraint(Sketcher.Constraint("DistanceX", 0, 2, 0, 1, Q("14 mm")))
sketch4.addConstraint(Sketcher.Constraint("DistanceX", 3, 2, 4, 2, Q("15 mm")))
sketch4.addConstraint(Sketcher.Constraint("DistanceX", 1, 3, -1, 1, Q("9.5 mm")))
sketch4.addConstraint(Sketcher.Constraint("DistanceY", -1, 1, 1, 3, Q("20.5 mm")))
sketch4.addConstraint(Sketcher.Constraint("DistanceY", 2, 2, 2, 1, Q("11.552632 mm")))
sketch4.addConstraint(Sketcher.Constraint("DistanceY", 6, 1, 6, 2, Q("4.921053 mm")))
sketch4.addConstraint(Sketcher.Constraint("DistanceX", 3, 2, -1, 1, Q("8.691411 mm")))
pad4 = body.newObject("PartDesign::Pad", "Pad003")
pad4.Profile = sketch4
pad4.Length = 8

# Sketch on XY plane
sketch5 = body.newObject("Sketcher::SketchObject", "Sketch004")
sketch5.AttachmentSupport = (doc.getObject("XY_Plane"), [""])
sketch5.MapMode = "FlatFace"
sketch5.AttachmentOffset = App.Placement(Vector(0, 0, 5), App.Rotation())
sketch5.addGeometry(Part.ArcOfCircle(Part.Circle(Vector(10, -20.5, 0), Vector(0, 0, 1), 1), math.radians(90), math.radians(150)), False)
sketch5.addGeometry(Part.ArcOfCircle(Part.Circle(Vector(10, -20.5, 0), Vector(0, 0, 1), 1), math.radians(150), math.radians(180)), False)
sketch5.addGeometry(Part.LineSegment(Vector(9, -20.5, 0), Vector(9, -21.5, 0)), False)
sketch5.addGeometry(Part.ArcOfCircle(Part.Circle(Vector(10, -21.5, 0), Vector(0, 0, 1), 1), math.radians(180), math.radians(270)), False)
sketch5.addGeometry(Part.LineSegment(Vector(10, -22.5, 0), Vector(16.5, -22.5, 0)), False)
sketch5.addGeometry(Part.ArcOfCircle(Part.Circle(Vector(16.5, -20.5, 0), Vector(0, 0, 1), 2), math.radians(-90), math.radians(0)), False)
sketch5.addGeometry(Part.ArcOfCircle(Part.Circle(Vector(17.5, -20.5, 0), Vector(0, 0, 1), 1), math.radians(0), math.radians(90)), False)
sketch5.addGeometry(Part.LineSegment(Vector(17.5, -19.5, 0), Vector(10, -19.5, 0)), False)
sketch5.addConstraint(Sketcher.Constraint("Tangent", 0, 2, 1, 1))
sketch5.addConstraint(Sketcher.Constraint("Tangent", 1, 2, 2, 1))
sketch5.addConstraint(Sketcher.Constraint("Tangent", 2, 2, 3, 1))
sketch5.addConstraint(Sketcher.Constraint("Tangent", 3, 2, 4, 1))
sketch5.addConstraint(Sketcher.Constraint("Tangent", 4, 2, 5, 1))
sketch5.addConstraint(Sketcher.Constraint("Tangent", 5, 2, 6, 1))
sketch5.addConstraint(Sketcher.Constraint("Tangent", 6, 2, 7, 1))
sketch5.addConstraint(Sketcher.Constraint("Tangent", 7, 2, 0, 1))
sketch5.addConstraint(Sketcher.Constraint("Vertical", 2))
sketch5.addConstraint(Sketcher.Constraint("Horizontal", 4))
sketch5.addConstraint(Sketcher.Constraint("Horizontal", 7))
sketch5.addConstraint(Sketcher.Constraint("Equal", 0, 1))
sketch5.addConstraint(Sketcher.Constraint("Equal", 1, 3))
sketch5.addConstraint(Sketcher.Constraint("Equal", 3, 6))
sketch5.addConstraint(Sketcher.Constraint("Horizontal", 1, 3, 5, 3))
sketch5.addConstraint(Sketcher.Constraint("Radius", 0, Q("1 mm")))
sketch5.addConstraint(Sketcher.Constraint("Radius", 5, Q("2 mm")))
sketch5.addConstraint(Sketcher.Constraint("DistanceX", 4, 1, 4, 2, Q("6.5 mm")))
sketch5.addConstraint(Sketcher.Constraint("DistanceX", -1, 1, 0, 3, Q("10 mm")))
sketch5.addConstraint(Sketcher.Constraint("DistanceY", 0, 2, -1, 1, Q("20 mm")))
sketch5.addConstraint(Sketcher.Constraint("DistanceY", 0, 3, -1, 1, Q("20.5 mm")))
pad5 = body.newObject("PartDesign::Pad", "Pad004")
pad5.Profile = sketch5
pad5.Length = 4
pad5.Reversed = True

# Sketch on XY plane
sketch6 = body.newObject("Sketcher::SketchObject", "Sketch005")
sketch6.AttachmentSupport = (doc.getObject("XY_Plane"), [""])
sketch6.MapMode = "FlatFace"
sketch6.AttachmentOffset = App.Placement(Vector(0, 0, 5), App.Rotation())
sketch6.addGeometry(Part.ArcOfCircle(Part.Circle(Vector(10, -20.5, 0), Vector(0, 0, 1), 1), math.radians(90), math.radians(150)), False)
sketch6.addGeometry(Part.ArcOfCircle(Part.Circle(Vector(10, -20.5, 0), Vector(0, 0, 1), 1), math.radians(150), math.radians(180)), False)
sketch6.addGeometry(Part.LineSegment(Vector(9, -20.5, 0), Vector(9, -21.5, 0)), False)
sketch6.addGeometry(Part.ArcOfCircle(Part.Circle(Vector(10, -21.5, 0), Vector(0, 0, 1), 1), math.radians(180), math.radians(270)), False)
sketch6.addGeometry(Part.LineSegment(Vector(10, -22.5, 0), Vector(16.5, -22.5, 0)), False)
sketch6.addGeometry(Part.ArcOfCircle(Part.Circle(Vector(16.5, -20.5, 0), Vector(0, 0, 1), 2), math.radians(-90), math.radians(0)), False)
sketch6.addGeometry(Part.ArcOfCircle(Part.Circle(Vector(17.5, -20.5, 0), Vector(0, 0, 1), 1), math.radians(0), math.radians(90)), False)
sketch6.addGeometry(Part.LineSegment(Vector(17.5, -19.5, 0), Vector(10, -19.5, 0)), False)
sketch6.addConstraint(Sketcher.Constraint("Tangent", 0, 2, 1, 1))
sketch6.addConstraint(Sketcher.Constraint("Tangent", 1, 2, 2, 1))
sketch6.addConstraint(Sketcher.Constraint("Tangent", 2, 2, 3, 1))
sketch6.addConstraint(Sketcher.Constraint("Tangent", 3, 2, 4, 1))
sketch6.addConstraint(Sketcher.Constraint("Tangent", 4, 2, 5, 1))
sketch6.addConstraint(Sketcher.Constraint("Tangent", 5, 2, 6, 1))
sketch6.addConstraint(Sketcher.Constraint("Tangent", 6, 2, 7, 1))
sketch6.addConstraint(Sketcher.Constraint("Tangent", 7, 2, 0, 1))
sketch6.addConstraint(Sketcher.Constraint("Vertical", 2))
sketch6.addConstraint(Sketcher.Constraint("Horizontal", 4))
sketch6.addConstraint(Sketcher.Constraint("Horizontal", 7))
sketch6.addConstraint(Sketcher.Constraint("Equal", 0, 1))
sketch6.addConstraint(Sketcher.Constraint("Equal", 1, 3))
sketch6.addConstraint(Sketcher.Constraint("Equal", 3, 6))
sketch6.addConstraint(Sketcher.Constraint("Horizontal", 1, 3, 5, 3))
sketch6.addConstraint(Sketcher.Constraint("Radius", 0, Q("1 mm")))
sketch6.addConstraint(Sketcher.Constraint("Radius", 5, Q("2 mm")))
sketch6.addConstraint(Sketcher.Constraint("DistanceX", 4, 1, 4, 2, Q("6.5 mm")))
sketch6.addConstraint(Sketcher.Constraint("DistanceX", -1, 1, 0, 3, Q("10 mm")))
sketch6.addConstraint(Sketcher.Constraint("DistanceY", 0, 2, -1, 1, Q("20 mm")))
sketch6.addConstraint(Sketcher.Constraint("DistanceY", 0, 3, -1, 1, Q("20.5 mm")))
pad6 = body.newObject("PartDesign::Pad", "Pad005")
pad6.Profile = sketch6
pad6.Length = 15

doc.recompute()
